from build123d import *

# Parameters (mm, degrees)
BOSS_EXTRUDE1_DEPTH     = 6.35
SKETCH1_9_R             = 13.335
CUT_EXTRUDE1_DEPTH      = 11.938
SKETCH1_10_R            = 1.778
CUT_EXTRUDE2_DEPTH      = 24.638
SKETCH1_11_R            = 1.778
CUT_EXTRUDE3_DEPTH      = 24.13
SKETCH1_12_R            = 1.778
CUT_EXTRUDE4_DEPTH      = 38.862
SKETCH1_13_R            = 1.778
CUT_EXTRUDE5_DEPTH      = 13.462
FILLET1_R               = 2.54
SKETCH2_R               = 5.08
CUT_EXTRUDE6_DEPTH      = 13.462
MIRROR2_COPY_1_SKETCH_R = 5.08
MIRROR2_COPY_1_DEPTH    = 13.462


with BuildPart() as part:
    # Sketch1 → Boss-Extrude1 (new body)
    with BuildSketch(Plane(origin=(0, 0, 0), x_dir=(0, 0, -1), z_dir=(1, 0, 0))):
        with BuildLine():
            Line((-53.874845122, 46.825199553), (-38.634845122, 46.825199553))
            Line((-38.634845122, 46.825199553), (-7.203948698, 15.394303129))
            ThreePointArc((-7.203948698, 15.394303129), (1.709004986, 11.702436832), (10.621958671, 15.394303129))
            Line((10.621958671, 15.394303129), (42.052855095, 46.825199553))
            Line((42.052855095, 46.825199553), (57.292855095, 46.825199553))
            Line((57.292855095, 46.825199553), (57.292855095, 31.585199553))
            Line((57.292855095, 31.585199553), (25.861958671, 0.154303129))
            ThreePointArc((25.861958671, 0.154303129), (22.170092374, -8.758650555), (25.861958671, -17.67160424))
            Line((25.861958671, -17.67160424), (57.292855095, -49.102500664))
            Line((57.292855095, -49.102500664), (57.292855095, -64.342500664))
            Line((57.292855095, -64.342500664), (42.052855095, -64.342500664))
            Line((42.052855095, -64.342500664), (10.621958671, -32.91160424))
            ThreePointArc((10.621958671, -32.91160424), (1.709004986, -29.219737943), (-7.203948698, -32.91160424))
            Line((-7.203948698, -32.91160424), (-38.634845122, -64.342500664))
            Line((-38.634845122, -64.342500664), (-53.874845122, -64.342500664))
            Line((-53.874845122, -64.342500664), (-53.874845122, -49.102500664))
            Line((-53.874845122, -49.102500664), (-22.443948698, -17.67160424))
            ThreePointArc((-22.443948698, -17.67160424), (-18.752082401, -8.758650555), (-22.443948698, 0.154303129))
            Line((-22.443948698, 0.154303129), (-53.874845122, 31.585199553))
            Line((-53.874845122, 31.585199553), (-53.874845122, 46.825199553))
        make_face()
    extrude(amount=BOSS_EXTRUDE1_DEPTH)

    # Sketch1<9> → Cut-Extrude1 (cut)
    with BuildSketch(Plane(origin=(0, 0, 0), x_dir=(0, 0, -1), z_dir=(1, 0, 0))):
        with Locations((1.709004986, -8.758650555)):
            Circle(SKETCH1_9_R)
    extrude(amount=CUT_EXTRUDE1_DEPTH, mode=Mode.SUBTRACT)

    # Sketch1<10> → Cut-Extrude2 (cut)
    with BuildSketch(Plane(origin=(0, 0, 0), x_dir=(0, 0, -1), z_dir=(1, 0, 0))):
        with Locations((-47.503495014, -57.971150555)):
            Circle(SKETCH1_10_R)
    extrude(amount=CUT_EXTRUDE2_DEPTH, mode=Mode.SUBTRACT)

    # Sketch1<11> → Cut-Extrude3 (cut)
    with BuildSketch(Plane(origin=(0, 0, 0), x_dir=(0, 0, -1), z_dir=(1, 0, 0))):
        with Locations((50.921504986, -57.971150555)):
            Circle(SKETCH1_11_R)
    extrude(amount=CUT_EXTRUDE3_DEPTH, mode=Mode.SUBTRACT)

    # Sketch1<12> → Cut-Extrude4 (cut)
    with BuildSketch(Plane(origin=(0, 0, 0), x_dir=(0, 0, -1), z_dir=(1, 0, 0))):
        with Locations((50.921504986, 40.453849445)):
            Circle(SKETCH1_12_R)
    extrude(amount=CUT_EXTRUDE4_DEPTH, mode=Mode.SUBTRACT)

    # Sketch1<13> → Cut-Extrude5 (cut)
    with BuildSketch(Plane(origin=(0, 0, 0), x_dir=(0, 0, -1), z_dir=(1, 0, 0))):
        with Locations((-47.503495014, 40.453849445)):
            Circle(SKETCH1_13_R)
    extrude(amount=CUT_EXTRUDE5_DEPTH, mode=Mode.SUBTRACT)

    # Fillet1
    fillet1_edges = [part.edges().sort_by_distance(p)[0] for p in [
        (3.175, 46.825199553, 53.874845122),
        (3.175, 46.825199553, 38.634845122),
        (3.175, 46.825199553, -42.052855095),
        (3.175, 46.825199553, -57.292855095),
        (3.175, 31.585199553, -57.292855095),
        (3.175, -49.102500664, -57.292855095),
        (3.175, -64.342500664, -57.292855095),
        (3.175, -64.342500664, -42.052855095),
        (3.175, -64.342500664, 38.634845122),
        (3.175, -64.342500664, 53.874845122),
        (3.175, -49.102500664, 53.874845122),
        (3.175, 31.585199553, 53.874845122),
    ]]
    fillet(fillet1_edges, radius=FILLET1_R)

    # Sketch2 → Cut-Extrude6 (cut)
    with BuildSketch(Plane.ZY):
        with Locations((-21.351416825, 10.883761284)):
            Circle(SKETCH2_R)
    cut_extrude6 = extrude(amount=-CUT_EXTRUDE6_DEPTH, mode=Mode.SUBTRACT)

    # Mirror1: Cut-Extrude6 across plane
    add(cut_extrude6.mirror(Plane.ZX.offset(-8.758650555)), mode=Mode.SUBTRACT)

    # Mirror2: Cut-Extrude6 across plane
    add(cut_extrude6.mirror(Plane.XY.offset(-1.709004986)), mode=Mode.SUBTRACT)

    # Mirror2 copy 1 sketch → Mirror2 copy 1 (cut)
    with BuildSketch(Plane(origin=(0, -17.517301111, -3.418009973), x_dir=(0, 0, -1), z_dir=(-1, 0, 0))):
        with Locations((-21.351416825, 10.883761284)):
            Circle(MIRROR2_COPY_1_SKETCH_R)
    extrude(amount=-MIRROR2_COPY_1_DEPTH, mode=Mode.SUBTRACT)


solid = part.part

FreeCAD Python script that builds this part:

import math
import FreeCAD as App
import Part
import Sketcher
Q = App.Units.Quantity


def edges_at(feature, points):
    """Names of the edges that pass closest to the given points."""
    edges = feature.Shape.Edges
    near = lambda p: min(range(len(edges)), key=lambda i: edges[i].distToShape(Part.Vertex(*p))[0])
    return sorted({f"Edge{near(p) + 1}" for p in points})

doc = App.newDocument("Part")
body = doc.addObject("PartDesign::Body", "Body")

# Sketch on YZ plane
sketch1 = body.newObject("Sketcher::SketchObject", "Sketch")
sketch1.AttachmentSupport = (doc.getObject("YZ_Plane"), [""])
sketch1.MapMode = "FlatFace"
sketch1.addGeometry(Part.LineSegment(App.Vector(47, 39, 0), App.Vector(47, 54, 0)), False)
sketch1.addGeometry(Part.LineSegment(App.Vector(47, 54, 0), App.Vector(32, 54, 0)), False)
sketch1.addGeometry(Part.LineSegment(App.Vector(32, 54, 0), App.Vector(0, 22, 0)), False)
sketch1.addGeometry(Part.ArcOfCircle(Part.Circle(App.Vector(-9, 31, 0), App.Vector(0, 0, 1), 13), math.radians(-135), math.radians(-45)), False)
sketch1.addGeometry(Part.LineSegment(App.Vector(-18, 22, 0), App.Vector(-49, 54, 0)), False)
sketch1.addGeometry(Part.LineSegment(App.Vector(-49, 54, 0), App.Vector(-64, 54, 0)), False)
sketch1.addGeometry(Part.LineSegment(App.Vector(-64, 54, 0), App.Vector(-64, 39, 0)), False)
sketch1.addGeometry(Part.LineSegment(App.Vector(-64, 39, 0), App.Vector(-33, 7, 0)), False)
sketch1.addGeometry(Part.ArcOfCircle(Part.Circle(App.Vector(-42, -2, 0), App.Vector(0, 0, 1), 13), math.radians(-45), math.radians(45)), False)
sketch1.addGeometry(Part.LineSegment(App.Vector(-33, -11, 0), App.Vector(-64, -42, 0)), False)
sketch1.addGeometry(Part.LineSegment(App.Vector(-64, -42, 0), App.Vector(-64, -57, 0)), False)
sketch1.addGeometry(Part.LineSegment(App.Vector(-64, -57, 0), App.Vector(-49, -57, 0)), False)
sketch1.addGeometry(Part.LineSegment(App.Vector(-49, -57, 0), App.Vector(-18, -26, 0)), False)
sketch1.addGeometry(Part.ArcOfCircle(Part.Circle(App.Vector(-9, -35, 0), App.Vector(0, 0, 1), 13), math.radians(45), math.radians(135)), False)
sketch1.addGeometry(Part.LineSegment(App.Vector(0, -26, 0), App.Vector(32, -57, 0)), False)
sketch1.addGeometry(Part.LineSegment(App.Vector(32, -57, 0), App.Vector(47, -57, 0)), False)
sketch1.addGeometry(Part.LineSegment(App.Vector(47, -57, 0), App.Vector(47, -42, 0)), False)
sketch1.addGeometry(Part.LineSegment(App.Vector(47, -42, 0), App.Vector(15, -11, 0)), False)
sketch1.addGeometry(Part.ArcOfCircle(Part.Circle(App.Vector(24, -2, 0), App.Vector(0, 0, 1), 13), math.radians(135), math.radians(225)), False)
sketch1.addGeometry(Part.LineSegment(App.Vector(15, 7, 0), App.Vector(47, 39, 0)), False)
sketch1.addConstraint(Sketcher.Constraint("Coincident", 0, 2, 1, 1))
sketch1.addConstraint(Sketcher.Constraint("Coincident", 1, 2, 2, 1))
sketch1.addConstraint(Sketcher.Constraint("Tangent", 2, 2, 3, 2))
sketch1.addConstraint(Sketcher.Constraint("Tangent", 3, 1, 4, 1))
sketch1.addConstraint(Sketcher.Constraint("Coincident", 4, 2, 5, 1))
sketch1.addConstraint(Sketcher.Constraint("Coincident", 5, 2, 6, 1))
sketch1.addConstraint(Sketcher.Constraint("Coincident", 6, 2, 7, 1))
sketch1.addConstraint(Sketcher.Constraint("Tangent", 7, 2, 8, 2))
sketch1.addConstraint(Sketcher.Constraint("Tangent", 8, 1, 9, 1))
sketch1.addConstraint(Sketcher.Constraint("Coincident", 9, 2, 10, 1))
sketch1.addConstraint(Sketcher.Constraint("Coincident", 10, 2, 11, 1))
sketch1.addConstraint(Sketcher.Constraint("Coincident", 11, 2, 12, 1))
sketch1.addConstraint(Sketcher.Constraint("Tangent", 12, 2, 13, 2))
sketch1.addConstraint(Sketcher.Constraint("Tangent", 13, 1, 14, 1))
sketch1.addConstraint(Sketcher.Constraint("Coincident", 14, 2, 15, 1))
sketch1.addConstraint(Sketcher.Constraint("Coincident", 15, 2, 16, 1))
sketch1.addConstraint(Sketcher.Constraint("Coincident", 16, 2, 17, 1))
sketch1.addConstraint(Sketcher.Constraint("Tangent", 17, 2, 18, 2))
sketch1.addConstraint(Sketcher.Constraint("Tangent", 18, 1, 19, 1))
sketch1.addConstraint(Sketcher.Constraint("Coincident", 19, 2, 0, 1))
sketch1.addConstraint(Sketcher.Constraint("Vertical", 0))
sketch1.addConstraint(Sketcher.Constraint("Horizontal", 1))
sketch1.addConstraint(Sketcher.Constraint("Horizontal", 5))
sketch1.addConstraint(Sketcher.Constraint("Vertical", 6))
sketch1.addConstraint(Sketcher.Constraint("Vertical", 10))
sketch1.addConstraint(Sketcher.Constraint("Horizontal", 11))
sketch1.addConstraint(Sketcher.Constraint("Horizontal", 15))
sketch1.addConstraint(Sketcher.Constraint("Vertical", 16))
sketch1.addConstraint(Sketcher.Constraint("Equal", 3, 8))
sketch1.addConstraint(Sketcher.Constraint("Equal", 8, 13))
sketch1.addConstraint(Sketcher.Constraint("Equal", 13, 18))
sketch1.addConstraint(Sketcher.Constraint("Perpendicular", 2, 4))
sketch1.addConstraint(Sketcher.Constraint("Parallel", 4, 7))
sketch1.addConstraint(Sketcher.Constraint("Perpendicular", 7, 9))
sketch1.addConstraint(Sketcher.Constraint("Parallel", 9, 12))
sketch1.addConstraint(Sketcher.Constraint("Perpendicular", 12, 14))
sketch1.addConstraint(Sketcher.Constraint("Parallel", 14, 17))
sketch1.addConstraint(Sketcher.Constraint("Perpendicular", 17, 19))
sketch1.addConstraint(Sketcher.Constraint("Horizontal", 8, 3, 18, 3))
sketch1.addConstraint(Sketcher.Constraint("Horizontal", 2, 2, 3, 1))
sketch1.addConstraint(Sketcher.Constraint("Horizontal", 1, 2, 4, 2))
sketch1.addConstraint(Sketcher.Constraint("Horizontal", 11, 2, 14, 2))
sketch1.addConstraint(Sketcher.Constraint("Horizontal", 9, 2, 16, 2))
sketch1.addConstraint(Sketcher.Constraint("Horizontal", 6, 2, 19, 2))
sketch1.addConstraint(Sketcher.Constraint("Vertical", 3, 3, 13, 3))
sketch1.addConstraint(Sketcher.Constraint("Vertical", 6, 2, 9, 2))
sketch1.addConstraint(Sketcher.Constraint("Vertical", 4, 2, 11, 2))
sketch1.addConstraint(Sketcher.Constraint("Equal", 1, 5))
sketch1.addConstraint(Sketcher.Constraint("Equal", 15, 0))
sketch1.addConstraint(Sketcher.Constraint("Equal", 6, 10))
sketch1.addConstraint(Sketcher.Constraint("Equal", 4, 7))
sketch1.addConstraint(Sketcher.Constraint("DistanceX", 1, 2, 1, 1, Q("0.6 in")))
sketch1.addConstraint(Sketcher.Constraint("Distance", 2, Q("1.75 in")))
sketch1.addConstraint(Sketcher.Constraint("Radius", 3, 12.60482))
sketch1.addConstraint(Sketcher.Constraint("DistanceX", -1, 1, 0, 2, 46.8252))
sketch1.addConstraint(Sketcher.Constraint("DistanceY", -1, 1, 2, 2, 22.443949))
pad1 = body.newObject("PartDesign::Pad", "Pad")
pad1.Profile = sketch1
pad1.Length = Q("0.25 in")

# Sketch on YZ plane
sketch2 = body.newObject("Sketcher::SketchObject", "Sketch001")
sketch2.AttachmentSupport = (doc.getObject("YZ_Plane"), [""])
sketch2.MapMode = "FlatFace"
sketch2.addGeometry(Part.Circle(App.Vector(-9, -2, 0), App.Vector(0, 0, 1), 13), False)
sketch2.addConstraint(Sketcher.Constraint("Diameter", 0, Q("1.05 in")))
sketch2.addConstraint(Sketcher.Constraint("DistanceX", 0, 3, -1, 1, 8.758651))
sketch2.addConstraint(Sketcher.Constraint("DistanceY", 0, 3, -1, 1, 1.709005))
pocket1 = body.newObject("PartDesign::Pocket", "Pocket")
pocket1.Profile = sketch2
pocket1.Length = Q("0.47 in")
pocket1.Reversed = True

# Sketch on YZ plane
sketch3 = body.newObject("Sketcher::SketchObject", "Sketch002")
sketch3.AttachmentSupport = (doc.getObject("YZ_Plane"), [""])
sketch3.MapMode = "FlatFace"
sketch3.addGeometry(Part.Circle(App.Vector(-58, 47.5, 0), App.Vector(0, 0, 1), 1.8), False)
sketch3.addConstraint(Sketcher.Constraint("Diameter", 0, Q("0.14 in")))
sketch3.addConstraint(Sketcher.Constraint("DistanceX", 0, 3, -1, 1, 57.971151))
sketch3.addConstraint(Sketcher.Constraint("DistanceY", -1, 1, 0, 3, 47.503495))
pocket2 = body.newObject("PartDesign::Pocket", "Pocket001")
pocket2.Profile = sketch3
pocket2.Length = Q("0.97 in")
pocket2.Reversed = True

# Sketch on YZ plane
sketch4 = body.newObject("Sketcher::SketchObject", "Sketch003")
sketch4.AttachmentSupport = (doc.getObject("YZ_Plane"), [""])
sketch4.MapMode = "FlatFace"
sketch4.addGeometry(Part.Circle(App.Vector(-58, -50.9, 0), App.Vector(0, 0, 1), 1.8), False)
sketch4.addConstraint(Sketcher.Constraint("Diameter", 0, Q("0.14 in")))
sketch4.addConstraint(Sketcher.Constraint("DistanceX", 0, 3, -1, 1, 57.971151))
sketch4.addConstraint(Sketcher.Constraint("DistanceY", 0, 3, -1, 1, 50.921505))
pocket3 = body.newObject("PartDesign::Pocket", "Pocket002")
pocket3.Profile = sketch4
pocket3.Length = Q("0.95 in")
pocket3.Reversed = True

# Sketch on YZ plane
sketch5 = body.newObject("Sketcher::SketchObject", "Sketch004")
sketch5.AttachmentSupport = (doc.getObject("YZ_Plane"), [""])
sketch5.MapMode = "FlatFace"
sketch5.addGeometry(Part.Circle(App.Vector(40.5, -50.9, 0), App.Vector(0, 0, 1), 1.8), False)
sketch5.addConstraint(Sketcher.Constraint("Diameter", 0, Q("0.14 in")))
sketch5.addConstraint(Sketcher.Constraint("DistanceX", -1, 1, 0, 3, 40.453849))
sketch5.addConstraint(Sketcher.Constraint("DistanceY", 0, 3, -1, 1, 50.921505))
pocket4 = body.newObject("PartDesign::Pocket", "Pocket003")
pocket4.Profile = sketch5
pocket4.Length = Q("1.53 in")
pocket4.Reversed = True

# Sketch on YZ plane
sketch6 = body.newObject("Sketcher::SketchObject", "Sketch005")
sketch6.AttachmentSupport = (doc.getObject("YZ_Plane"), [""])
sketch6.MapMode = "FlatFace"
sketch6.addGeometry(Part.Circle(App.Vector(40.5, 47.5, 0), App.Vector(0, 0, 1), 1.8), False)
sketch6.addConstraint(Sketcher.Constraint("Diameter", 0, Q("0.14 in")))
sketch6.addConstraint(Sketcher.Constraint("DistanceX", -1, 1, 0, 3, 40.453849))
sketch6.addConstraint(Sketcher.Constraint("DistanceY", -1, 1, 0, 3, 47.503495))
pocket5 = body.newObject("PartDesign::Pocket", "Pocket004")
pocket5.Profile = sketch6
pocket5.Length = Q("0.53 in")
pocket5.Reversed = True
doc.recompute()

fillet = body.newObject("PartDesign::Fillet", "Fillet")
fillet.Base = (pocket5, edges_at(pocket5, [
    (3.175, 46.825, 53.875),
    (3.175, 46.825, 38.635),
    (3.175, 46.825, -42.053),
    (3.175, 46.825, -57.293),
    (3.175, 31.585, -57.293),
    (3.175, -49.103, -57.293),
    (3.175, -64.343, -57.293),
    (3.175, -64.343, -42.053),
    (3.175, -64.343, 38.635),
    (3.175, -64.343, 53.875),
    (3.175, -49.103, 53.875),
    (3.175, 31.585, 53.875),
]))
fillet.Radius = Q("0.1 in")

# Sketch on YZ plane
sketch7 = body.newObject("Sketcher::SketchObject", "Sketch006")
sketch7.AttachmentSupport = (doc.getObject("YZ_Plane"), [""])
sketch7.MapMode = "FlatFace"
sketch7.addGeometry(Part.Circle(App.Vector(11, -21, 0), App.Vector(0, 0, 1), 5), False)
sketch7.addConstraint(Sketcher.Constraint("Diameter", 0, Q("0.4 in")))
sketch7.addConstraint(Sketcher.Constraint("DistanceX", -1, 1, 0, 3, 10.883761))
sketch7.addConstraint(Sketcher.Constraint("DistanceY", 0, 3, -1, 1, 21.351417))
pocket6 = body.newObject("PartDesign::Pocket", "Pocket005")
pocket6.Profile = sketch7
pocket6.Length = Q("0.53 in")
pocket6.Reversed = True
doc.recompute()

datumplane = body.newObject("PartDesign::Plane", "DatumPlane")
datumplane.AttachmentSupport = (doc.getObject("XZ_Plane"), [""])
datumplane.MapMode = "FlatFace"
datumplane.AttachmentOffset = App.Placement(App.Vector(0, 0, 8.758651), App.Rotation())
mirrored = body.newObject("PartDesign::Mirrored", "Mirrored")
mirrored.Originals = [pocket6]
mirrored.MirrorPlane = (datumplane, [""])
body.Tip = mirrored
doc.recompute()

datumplane2 = body.newObject("PartDesign::Plane", "DatumPlane001")
datumplane2.AttachmentSupport = (doc.getObject("XY_Plane"), [""])
datumplane2.MapMode = "FlatFace"
datumplane2.AttachmentOffset = App.Placement(App.Vector(0, 0, -1.709005), App.Rotation())
mirrored2 = body.newObject("PartDesign::Mirrored", "Mirrored001")
mirrored2.Originals = [pocket6]
mirrored2.MirrorPlane = (datumplane2, [""])
body.Tip = mirrored2

# Sketch on YZ plane
sketch8 = body.newObject("Sketcher::SketchObject", "Sketch007")
sketch8.AttachmentSupport = (doc.getObject("YZ_Plane"), [""])
sketch8.MapMode = "FlatFace"
sketch8.addGeometry(Part.Circle(App.Vector(-28, 18, 0), App.Vector(0, 0, 1), 5), False)
sketch8.addConstraint(Sketcher.Constraint("Diameter", 0, Q("0.4 in")))
sketch8.addConstraint(Sketcher.Constraint("DistanceX", 0, 3, -1, 1, 28.401062))
sketch8.addConstraint(Sketcher.Constraint("DistanceY", -1, 1, 0, 3, 17.933407))
pocket7 = body.newObject("PartDesign::Pocket", "Pocket006")
pocket7.Profile = sketch8
pocket7.Length = Q("0.53 in")
pocket7.Reversed = True

doc.recompute()
